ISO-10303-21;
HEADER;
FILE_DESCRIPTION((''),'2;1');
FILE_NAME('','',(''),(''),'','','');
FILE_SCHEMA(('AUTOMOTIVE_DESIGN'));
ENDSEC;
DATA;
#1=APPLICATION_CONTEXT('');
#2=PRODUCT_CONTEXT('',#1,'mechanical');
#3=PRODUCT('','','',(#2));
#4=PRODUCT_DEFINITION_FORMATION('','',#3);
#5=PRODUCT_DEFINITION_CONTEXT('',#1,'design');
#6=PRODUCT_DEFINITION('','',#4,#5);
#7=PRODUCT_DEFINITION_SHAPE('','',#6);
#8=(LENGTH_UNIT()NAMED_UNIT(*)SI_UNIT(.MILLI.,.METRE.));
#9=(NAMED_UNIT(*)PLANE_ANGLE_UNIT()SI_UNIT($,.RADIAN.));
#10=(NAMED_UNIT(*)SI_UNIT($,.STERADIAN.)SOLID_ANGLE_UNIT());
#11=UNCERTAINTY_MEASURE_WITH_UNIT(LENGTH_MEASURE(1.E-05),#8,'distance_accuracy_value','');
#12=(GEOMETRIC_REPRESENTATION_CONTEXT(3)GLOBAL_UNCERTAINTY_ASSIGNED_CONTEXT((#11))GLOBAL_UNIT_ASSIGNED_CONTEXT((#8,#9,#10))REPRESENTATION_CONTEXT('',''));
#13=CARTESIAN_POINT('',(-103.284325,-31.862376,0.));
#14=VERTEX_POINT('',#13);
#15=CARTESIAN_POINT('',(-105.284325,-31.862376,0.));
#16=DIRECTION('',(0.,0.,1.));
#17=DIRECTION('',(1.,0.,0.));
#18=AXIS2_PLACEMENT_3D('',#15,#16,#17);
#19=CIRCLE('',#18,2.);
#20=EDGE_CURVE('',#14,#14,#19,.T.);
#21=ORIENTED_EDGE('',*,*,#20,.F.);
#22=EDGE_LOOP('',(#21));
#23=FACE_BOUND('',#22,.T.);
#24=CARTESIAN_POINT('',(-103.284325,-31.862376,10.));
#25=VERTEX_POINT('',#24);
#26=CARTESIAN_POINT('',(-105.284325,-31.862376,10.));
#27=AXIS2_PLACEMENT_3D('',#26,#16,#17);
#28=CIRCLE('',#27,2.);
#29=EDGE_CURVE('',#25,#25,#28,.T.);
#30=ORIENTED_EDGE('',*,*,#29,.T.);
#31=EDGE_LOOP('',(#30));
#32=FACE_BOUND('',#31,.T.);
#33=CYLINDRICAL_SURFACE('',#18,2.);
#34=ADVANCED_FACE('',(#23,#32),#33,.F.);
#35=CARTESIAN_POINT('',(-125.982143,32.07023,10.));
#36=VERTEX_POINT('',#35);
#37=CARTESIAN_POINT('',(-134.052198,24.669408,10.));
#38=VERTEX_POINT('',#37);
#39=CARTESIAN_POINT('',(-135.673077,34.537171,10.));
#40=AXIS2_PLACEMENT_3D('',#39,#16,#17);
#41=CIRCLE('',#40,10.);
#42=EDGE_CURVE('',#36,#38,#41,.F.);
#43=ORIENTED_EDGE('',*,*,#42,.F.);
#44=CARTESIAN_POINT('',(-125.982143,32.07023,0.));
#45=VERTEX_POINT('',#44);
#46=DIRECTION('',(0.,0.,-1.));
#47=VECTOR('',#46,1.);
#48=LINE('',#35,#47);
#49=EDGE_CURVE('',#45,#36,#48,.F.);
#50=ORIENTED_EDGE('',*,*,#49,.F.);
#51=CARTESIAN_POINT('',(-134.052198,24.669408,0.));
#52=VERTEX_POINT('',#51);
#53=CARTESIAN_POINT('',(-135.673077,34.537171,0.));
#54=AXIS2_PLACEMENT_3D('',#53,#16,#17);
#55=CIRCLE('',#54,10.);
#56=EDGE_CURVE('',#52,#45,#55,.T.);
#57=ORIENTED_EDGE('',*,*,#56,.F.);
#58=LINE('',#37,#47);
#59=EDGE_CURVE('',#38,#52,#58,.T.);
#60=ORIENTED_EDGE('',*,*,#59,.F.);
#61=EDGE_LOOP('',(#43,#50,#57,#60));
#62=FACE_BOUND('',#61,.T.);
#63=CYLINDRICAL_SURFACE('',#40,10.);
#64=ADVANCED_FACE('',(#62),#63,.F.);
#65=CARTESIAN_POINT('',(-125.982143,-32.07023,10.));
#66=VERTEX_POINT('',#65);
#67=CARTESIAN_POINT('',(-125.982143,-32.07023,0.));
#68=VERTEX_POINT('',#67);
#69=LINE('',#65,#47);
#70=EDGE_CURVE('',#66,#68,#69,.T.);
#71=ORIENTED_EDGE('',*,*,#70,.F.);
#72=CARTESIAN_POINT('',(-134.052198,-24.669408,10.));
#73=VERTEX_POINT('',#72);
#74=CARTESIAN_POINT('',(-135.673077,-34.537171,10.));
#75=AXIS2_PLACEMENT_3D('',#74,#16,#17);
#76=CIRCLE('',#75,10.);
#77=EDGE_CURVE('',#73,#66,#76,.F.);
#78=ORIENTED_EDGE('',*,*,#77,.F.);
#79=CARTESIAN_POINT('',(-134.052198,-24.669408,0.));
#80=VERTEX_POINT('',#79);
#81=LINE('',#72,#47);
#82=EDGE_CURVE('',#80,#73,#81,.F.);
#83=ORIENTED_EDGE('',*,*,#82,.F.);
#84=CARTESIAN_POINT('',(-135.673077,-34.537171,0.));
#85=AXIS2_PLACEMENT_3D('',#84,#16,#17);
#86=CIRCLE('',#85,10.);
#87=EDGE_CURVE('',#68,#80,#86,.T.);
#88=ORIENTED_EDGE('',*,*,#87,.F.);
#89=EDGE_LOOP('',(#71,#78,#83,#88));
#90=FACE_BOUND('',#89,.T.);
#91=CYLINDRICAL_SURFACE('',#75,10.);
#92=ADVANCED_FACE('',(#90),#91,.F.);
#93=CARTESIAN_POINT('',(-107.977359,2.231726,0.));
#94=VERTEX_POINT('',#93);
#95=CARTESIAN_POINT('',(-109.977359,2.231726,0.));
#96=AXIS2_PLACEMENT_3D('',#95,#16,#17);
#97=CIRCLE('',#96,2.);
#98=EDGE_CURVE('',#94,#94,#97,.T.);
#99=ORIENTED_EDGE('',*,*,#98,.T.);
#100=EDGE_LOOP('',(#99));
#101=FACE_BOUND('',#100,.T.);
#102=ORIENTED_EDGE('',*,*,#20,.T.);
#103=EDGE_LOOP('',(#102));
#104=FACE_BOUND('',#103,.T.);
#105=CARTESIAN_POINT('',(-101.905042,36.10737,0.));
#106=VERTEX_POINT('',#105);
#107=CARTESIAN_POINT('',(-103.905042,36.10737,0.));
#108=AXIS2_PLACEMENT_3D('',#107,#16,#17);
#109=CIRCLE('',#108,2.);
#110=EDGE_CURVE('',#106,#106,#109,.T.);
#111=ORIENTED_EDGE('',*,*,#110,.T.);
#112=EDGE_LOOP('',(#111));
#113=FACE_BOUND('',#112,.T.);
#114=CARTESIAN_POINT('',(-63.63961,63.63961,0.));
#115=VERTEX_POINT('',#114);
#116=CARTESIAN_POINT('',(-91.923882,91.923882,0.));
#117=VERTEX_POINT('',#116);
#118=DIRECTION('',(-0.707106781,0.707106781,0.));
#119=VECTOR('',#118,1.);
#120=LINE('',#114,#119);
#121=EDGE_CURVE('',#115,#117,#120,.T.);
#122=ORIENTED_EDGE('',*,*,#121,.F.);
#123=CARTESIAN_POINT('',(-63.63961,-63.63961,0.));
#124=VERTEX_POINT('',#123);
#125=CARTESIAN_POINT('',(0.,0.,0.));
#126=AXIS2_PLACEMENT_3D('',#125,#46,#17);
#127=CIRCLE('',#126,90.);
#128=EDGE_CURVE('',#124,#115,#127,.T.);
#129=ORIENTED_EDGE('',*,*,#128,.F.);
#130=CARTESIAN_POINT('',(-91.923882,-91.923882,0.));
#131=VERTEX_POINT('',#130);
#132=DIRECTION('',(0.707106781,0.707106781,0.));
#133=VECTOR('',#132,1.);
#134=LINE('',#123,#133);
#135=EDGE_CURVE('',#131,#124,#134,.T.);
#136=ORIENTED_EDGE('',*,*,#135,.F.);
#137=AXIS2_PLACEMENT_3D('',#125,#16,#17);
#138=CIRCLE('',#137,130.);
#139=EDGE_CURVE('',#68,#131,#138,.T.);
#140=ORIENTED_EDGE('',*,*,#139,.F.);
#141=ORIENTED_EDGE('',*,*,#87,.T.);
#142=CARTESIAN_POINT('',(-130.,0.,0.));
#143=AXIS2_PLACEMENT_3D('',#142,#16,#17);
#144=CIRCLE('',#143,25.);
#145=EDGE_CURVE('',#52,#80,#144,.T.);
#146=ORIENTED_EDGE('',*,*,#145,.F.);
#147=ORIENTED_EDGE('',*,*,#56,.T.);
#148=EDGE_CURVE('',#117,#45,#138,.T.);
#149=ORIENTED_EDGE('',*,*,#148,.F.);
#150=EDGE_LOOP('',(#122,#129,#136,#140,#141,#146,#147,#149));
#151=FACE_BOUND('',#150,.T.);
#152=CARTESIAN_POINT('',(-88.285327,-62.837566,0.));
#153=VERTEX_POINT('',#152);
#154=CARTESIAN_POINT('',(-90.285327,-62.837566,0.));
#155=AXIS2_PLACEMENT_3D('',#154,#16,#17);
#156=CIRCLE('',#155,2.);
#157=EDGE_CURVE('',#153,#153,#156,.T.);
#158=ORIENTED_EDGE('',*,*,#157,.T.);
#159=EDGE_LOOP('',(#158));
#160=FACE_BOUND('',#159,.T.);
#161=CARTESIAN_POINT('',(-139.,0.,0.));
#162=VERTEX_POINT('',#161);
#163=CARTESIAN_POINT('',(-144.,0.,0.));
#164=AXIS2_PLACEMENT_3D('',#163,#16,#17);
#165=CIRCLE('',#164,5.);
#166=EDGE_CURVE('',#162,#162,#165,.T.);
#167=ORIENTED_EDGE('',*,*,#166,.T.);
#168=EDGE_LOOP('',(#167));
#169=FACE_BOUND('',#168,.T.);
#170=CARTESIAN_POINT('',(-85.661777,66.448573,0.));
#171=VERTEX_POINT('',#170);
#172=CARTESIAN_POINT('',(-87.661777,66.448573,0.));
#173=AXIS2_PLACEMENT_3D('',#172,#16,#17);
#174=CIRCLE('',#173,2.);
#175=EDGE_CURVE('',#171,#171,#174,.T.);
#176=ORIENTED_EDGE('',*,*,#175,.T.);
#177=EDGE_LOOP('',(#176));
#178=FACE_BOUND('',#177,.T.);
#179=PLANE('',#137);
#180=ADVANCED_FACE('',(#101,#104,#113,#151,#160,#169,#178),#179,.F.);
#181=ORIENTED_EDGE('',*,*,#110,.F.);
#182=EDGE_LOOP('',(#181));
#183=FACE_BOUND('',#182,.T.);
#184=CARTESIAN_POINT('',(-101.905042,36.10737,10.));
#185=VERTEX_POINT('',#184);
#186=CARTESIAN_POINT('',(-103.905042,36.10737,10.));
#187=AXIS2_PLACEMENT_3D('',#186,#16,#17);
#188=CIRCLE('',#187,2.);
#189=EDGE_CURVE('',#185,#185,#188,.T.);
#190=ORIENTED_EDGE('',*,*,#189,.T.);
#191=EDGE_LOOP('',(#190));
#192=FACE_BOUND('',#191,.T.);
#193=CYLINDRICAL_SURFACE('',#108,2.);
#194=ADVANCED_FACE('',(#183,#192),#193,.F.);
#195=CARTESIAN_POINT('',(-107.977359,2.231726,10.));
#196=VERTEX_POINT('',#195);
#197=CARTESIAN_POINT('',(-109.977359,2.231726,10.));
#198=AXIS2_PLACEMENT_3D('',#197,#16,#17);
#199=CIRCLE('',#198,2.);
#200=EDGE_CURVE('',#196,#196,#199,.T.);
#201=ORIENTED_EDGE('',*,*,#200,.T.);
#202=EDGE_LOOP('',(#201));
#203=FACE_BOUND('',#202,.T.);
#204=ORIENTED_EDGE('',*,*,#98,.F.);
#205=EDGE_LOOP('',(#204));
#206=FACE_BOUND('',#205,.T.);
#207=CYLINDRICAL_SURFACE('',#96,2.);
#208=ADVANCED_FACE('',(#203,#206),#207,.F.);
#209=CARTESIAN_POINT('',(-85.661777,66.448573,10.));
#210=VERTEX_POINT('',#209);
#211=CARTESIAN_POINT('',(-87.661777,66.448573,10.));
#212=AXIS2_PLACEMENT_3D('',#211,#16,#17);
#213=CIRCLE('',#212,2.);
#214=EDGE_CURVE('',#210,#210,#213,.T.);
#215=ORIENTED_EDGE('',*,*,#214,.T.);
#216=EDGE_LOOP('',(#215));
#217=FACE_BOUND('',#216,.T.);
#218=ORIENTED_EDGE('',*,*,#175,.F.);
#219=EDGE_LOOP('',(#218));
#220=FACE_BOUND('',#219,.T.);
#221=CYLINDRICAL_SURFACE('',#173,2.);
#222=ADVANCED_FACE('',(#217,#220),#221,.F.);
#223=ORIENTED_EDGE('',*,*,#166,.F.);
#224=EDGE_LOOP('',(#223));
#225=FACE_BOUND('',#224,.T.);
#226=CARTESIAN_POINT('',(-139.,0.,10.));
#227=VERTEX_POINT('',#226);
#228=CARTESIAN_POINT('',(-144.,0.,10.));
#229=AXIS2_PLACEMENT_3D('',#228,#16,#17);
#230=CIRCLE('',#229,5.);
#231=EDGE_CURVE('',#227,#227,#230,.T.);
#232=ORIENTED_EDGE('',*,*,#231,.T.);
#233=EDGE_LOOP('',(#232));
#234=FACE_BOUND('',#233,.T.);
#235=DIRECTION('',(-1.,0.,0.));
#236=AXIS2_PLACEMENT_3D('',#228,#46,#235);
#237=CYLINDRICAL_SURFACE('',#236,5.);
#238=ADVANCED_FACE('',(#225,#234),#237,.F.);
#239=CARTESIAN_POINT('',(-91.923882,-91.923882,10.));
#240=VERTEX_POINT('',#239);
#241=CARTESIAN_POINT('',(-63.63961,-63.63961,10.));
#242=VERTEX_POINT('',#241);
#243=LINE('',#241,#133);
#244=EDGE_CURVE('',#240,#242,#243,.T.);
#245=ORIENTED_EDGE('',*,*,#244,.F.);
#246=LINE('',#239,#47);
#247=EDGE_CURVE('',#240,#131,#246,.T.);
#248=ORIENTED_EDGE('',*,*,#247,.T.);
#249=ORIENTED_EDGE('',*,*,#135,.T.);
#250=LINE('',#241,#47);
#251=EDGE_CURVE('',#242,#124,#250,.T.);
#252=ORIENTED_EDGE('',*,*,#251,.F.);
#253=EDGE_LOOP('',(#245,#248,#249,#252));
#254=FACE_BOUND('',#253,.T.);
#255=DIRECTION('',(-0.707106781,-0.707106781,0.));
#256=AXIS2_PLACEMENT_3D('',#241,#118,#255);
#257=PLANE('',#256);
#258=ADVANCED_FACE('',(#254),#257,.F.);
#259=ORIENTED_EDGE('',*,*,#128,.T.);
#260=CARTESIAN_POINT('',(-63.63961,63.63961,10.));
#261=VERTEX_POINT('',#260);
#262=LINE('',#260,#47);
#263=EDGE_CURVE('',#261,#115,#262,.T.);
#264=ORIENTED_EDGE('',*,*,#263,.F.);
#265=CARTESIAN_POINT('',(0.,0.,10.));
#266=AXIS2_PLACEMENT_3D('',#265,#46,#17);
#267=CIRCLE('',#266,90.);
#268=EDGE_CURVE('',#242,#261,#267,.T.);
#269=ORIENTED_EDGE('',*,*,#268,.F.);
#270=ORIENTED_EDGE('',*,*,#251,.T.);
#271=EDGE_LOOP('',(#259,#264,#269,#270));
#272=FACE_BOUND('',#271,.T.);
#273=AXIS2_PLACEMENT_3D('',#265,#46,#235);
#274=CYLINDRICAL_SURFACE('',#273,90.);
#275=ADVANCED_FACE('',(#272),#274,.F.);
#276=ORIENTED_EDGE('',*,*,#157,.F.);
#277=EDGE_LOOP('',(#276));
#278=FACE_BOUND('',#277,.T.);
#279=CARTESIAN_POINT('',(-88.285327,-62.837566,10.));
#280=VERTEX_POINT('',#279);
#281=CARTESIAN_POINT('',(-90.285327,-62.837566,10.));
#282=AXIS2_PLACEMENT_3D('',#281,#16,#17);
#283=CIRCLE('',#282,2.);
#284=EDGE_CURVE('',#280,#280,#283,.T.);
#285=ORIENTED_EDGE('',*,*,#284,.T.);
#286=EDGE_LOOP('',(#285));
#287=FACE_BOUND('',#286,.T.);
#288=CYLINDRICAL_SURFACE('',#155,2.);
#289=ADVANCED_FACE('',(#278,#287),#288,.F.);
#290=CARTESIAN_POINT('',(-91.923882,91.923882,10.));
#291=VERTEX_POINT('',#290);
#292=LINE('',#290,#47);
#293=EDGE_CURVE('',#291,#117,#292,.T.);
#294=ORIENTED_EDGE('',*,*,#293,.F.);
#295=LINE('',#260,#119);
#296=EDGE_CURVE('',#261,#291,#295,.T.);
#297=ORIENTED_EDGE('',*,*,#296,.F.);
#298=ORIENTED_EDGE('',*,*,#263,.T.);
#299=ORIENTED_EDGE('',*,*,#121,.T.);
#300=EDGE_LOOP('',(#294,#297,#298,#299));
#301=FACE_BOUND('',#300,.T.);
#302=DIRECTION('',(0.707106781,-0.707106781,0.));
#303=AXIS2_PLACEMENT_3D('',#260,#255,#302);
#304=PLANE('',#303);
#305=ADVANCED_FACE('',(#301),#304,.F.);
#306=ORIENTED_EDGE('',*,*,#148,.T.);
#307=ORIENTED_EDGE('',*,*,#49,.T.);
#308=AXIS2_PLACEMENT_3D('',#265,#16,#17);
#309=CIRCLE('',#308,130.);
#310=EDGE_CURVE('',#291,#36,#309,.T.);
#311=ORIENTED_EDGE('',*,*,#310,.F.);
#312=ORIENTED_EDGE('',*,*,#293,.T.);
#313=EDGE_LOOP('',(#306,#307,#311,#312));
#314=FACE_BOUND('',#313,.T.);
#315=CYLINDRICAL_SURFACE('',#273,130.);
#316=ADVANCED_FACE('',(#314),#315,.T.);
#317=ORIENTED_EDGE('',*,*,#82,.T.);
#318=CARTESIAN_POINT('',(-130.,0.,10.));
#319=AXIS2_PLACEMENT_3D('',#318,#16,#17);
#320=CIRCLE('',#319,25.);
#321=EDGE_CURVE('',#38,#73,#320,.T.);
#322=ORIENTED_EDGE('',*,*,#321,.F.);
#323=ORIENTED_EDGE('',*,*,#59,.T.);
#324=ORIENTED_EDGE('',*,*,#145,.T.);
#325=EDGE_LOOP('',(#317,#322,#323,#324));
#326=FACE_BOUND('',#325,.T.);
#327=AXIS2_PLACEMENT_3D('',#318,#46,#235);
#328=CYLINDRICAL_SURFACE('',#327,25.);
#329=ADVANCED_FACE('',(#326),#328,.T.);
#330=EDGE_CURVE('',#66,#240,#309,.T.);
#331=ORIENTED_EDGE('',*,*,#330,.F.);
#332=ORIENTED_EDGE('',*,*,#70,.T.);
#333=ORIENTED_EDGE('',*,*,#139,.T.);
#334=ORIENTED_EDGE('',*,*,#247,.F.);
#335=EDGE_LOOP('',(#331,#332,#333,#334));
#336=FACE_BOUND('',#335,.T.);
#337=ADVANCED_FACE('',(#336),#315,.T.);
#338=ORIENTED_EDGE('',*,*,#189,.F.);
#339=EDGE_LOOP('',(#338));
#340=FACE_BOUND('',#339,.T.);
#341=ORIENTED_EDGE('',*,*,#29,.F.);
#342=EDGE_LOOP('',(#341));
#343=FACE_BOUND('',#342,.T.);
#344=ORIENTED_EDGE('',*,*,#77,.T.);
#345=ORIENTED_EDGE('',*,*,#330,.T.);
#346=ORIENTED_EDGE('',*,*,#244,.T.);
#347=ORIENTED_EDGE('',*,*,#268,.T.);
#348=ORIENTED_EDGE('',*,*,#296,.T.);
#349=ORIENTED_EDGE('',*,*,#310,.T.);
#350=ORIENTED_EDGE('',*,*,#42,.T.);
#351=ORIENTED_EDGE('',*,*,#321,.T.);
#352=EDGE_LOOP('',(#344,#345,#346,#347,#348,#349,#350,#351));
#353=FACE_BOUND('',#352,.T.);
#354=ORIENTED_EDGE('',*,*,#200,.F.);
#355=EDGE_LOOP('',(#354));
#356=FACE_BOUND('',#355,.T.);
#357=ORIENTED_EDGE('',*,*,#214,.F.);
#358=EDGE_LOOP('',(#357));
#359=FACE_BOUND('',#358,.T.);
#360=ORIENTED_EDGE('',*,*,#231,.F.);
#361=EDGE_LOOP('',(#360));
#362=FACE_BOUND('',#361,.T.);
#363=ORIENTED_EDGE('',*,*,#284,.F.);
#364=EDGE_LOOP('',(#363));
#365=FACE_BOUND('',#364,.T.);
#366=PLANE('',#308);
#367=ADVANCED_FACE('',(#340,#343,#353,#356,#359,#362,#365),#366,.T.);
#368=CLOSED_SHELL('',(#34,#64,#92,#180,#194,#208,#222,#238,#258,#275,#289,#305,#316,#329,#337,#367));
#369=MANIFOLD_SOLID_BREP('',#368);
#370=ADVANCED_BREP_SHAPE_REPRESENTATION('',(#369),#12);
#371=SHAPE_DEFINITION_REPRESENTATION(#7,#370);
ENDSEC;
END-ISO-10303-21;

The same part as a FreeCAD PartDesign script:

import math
import FreeCAD as App
import Part
import Sketcher


def edges_at(feature, points):
    """Names of the edges that pass closest to the given points."""
    edges = feature.Shape.Edges
    near = lambda p: min(range(len(edges)), key=lambda i: edges[i].distToShape(Part.Vertex(*p))[0])
    return sorted({f"Edge{near(p) + 1}" for p in points})

doc = App.newDocument("Part")
body = doc.addObject("PartDesign::Body", "Body")

# Sketch on XY plane
sketch1 = body.newObject("Sketcher::SketchObject", "Sketch")
sketch1.AttachmentSupport = (doc.getObject("XY_Plane"), [""])
sketch1.MapMode = "FlatFace"
sketch1.addGeometry([
    Part.LineSegment(App.Vector(-63.63961, 63.63961, 0), App.Vector(-91.923882, 91.923882, 0)),  # 0
    Part.ArcOfCircle(Part.Circle(App.Vector(0, 0, 0), App.Vector(0, 0, 1), 130), math.radians(135), math.radians(168.964531)),  # 1
    Part.ArcOfCircle(Part.Circle(App.Vector(-130, 0, 0), App.Vector(0, 0, 1), 25), math.radians(84.482266), math.radians(275.517734)),  # 2
    Part.ArcOfCircle(Part.Circle(App.Vector(0, 0, 0), App.Vector(0, 0, 1), 130), math.radians(-168.964531), math.radians(-135)),  # 3
    Part.LineSegment(App.Vector(-91.923882, -91.923882, 0), App.Vector(-63.63961, -63.63961, 0)),  # 4
    Part.ArcOfCircle(Part.Circle(App.Vector(0, 0, 0), App.Vector(0, 0, 1), 90), math.radians(135), math.radians(225)),  # 5
    Part.Circle(App.Vector(-144, 0, 0), App.Vector(0, 0, 1), 5),  # 6
], False)
sketch1.addConstraint([
    Sketcher.Constraint("Coincident", 0, 2, 1, 1),
    Sketcher.Constraint("Coincident", 1, 2, 2, 1),
    Sketcher.Constraint("Coincident", 2, 2, 3, 1),
    Sketcher.Constraint("Coincident", 3, 2, 4, 1),
    Sketcher.Constraint("Coincident", 4, 2, 5, 2),
    Sketcher.Constraint("Coincident", 5, 1, 0, 1),
    Sketcher.Constraint("Coincident", 1, 3, -1, 1),
    Sketcher.Constraint("Coincident", 3, 3, -1, 1),
    Sketcher.Constraint("Coincident", 5, 3, -1, 1),
    Sketcher.Constraint("Equal", 1, 3),
    Sketcher.Constraint("PointOnObject", 2, 3, -1),
    Sketcher.Constraint("PointOnObject", 6, 3, -1),
    Sketcher.Constraint("Perpendicular", 0, 4),
    Sketcher.Constraint("Vertical", 0, 2, 3, 2),
    Sketcher.Constraint("Vertical", 4, 2, 5, 1),
    Sketcher.Constraint("Diameter", 6, 10.0),
    Sketcher.Constraint("Radius", 1, 130.0),
    Sketcher.Constraint("Radius", 2, 25.0),
    Sketcher.Constraint("Radius", 5, 90.0),
    Sketcher.Constraint("DistanceX", 2, 3, -1, 1, 130.0),
    Sketcher.Constraint("DistanceX", 6, 3, -1, 1, 144.0),
    Sketcher.Constraint("DistanceX", 0, 2, -1, 1, 91.923882),
])
pad1 = body.newObject("PartDesign::Pad", "Pad")
pad1.Profile = sketch1
pad1.Length = 10
doc.recompute()

fillet = body.newObject("PartDesign::Fillet", "Fillet")
fillet.Base = (pad1, edges_at(pad1, [(-127.596, -24.884, 5), (-127.596, 24.884, 5)]))
fillet.Radius = 10

# Sketch on XY plane
sketch2 = body.newObject("Sketcher::SketchObject", "Sketch001")
sketch2.AttachmentSupport = (doc.getObject("XY_Plane"), [""])
sketch2.MapMode = "FlatFace"
sketch2.AttachmentOffset = App.Placement(App.Vector(0, 0, 10), App.Rotation())
sketch2.addGeometry([
    Part.Circle(App.Vector(-87.661777, 66.448573, 0), App.Vector(0, 0, 1), 2),  # 0
    Part.Circle(App.Vector(-103.905042, 36.10737, 0), App.Vector(0, 0, 1), 2),  # 1
    Part.Circle(App.Vector(-109.977359, 2.231726, 0), App.Vector(0, 0, 1), 2),  # 2
    Part.Circle(App.Vector(-105.284325, -31.862376, 0), App.Vector(0, 0, 1), 2),  # 3
    Part.Circle(App.Vector(-90.285327, -62.837566, 0), App.Vector(0, 0, 1), 2),  # 4
], False)
sketch2.addConstraint([
    Sketcher.Constraint("Equal", 0, 1),
    Sketcher.Constraint("Equal", 1, 2),
    Sketcher.Constraint("Equal", 2, 3),
    Sketcher.Constraint("Equal", 3, 4),
    Sketcher.Constraint("Diameter", 0, 4.0),
    Sketcher.Constraint("DistanceY", 3, 3, 2, 3, 34.094101),
    Sketcher.Constraint("DistanceY", -1, 1, 1, 3, 36.10737),
    Sketcher.Constraint("DistanceX", 2, 3, -1, 1, 109.977359),
    Sketcher.Constraint("DistanceX", 2, 3, 0, 3, 22.315582),
    Sketcher.Constraint("DistanceY", 3, 3, 0, 3, 98.310949),
    Sketcher.Constraint("DistanceY", 4, 3, 3, 3, 30.97519),
    Sketcher.Constraint("DistanceX", 2, 3, 4, 3, 19.692031),
    Sketcher.Constraint("DistanceY", -1, 1, 0, 3, 66.448573),
    Sketcher.Constraint("DistanceX", 1, 3, -1, 1, 103.905042),
    Sketcher.Constraint("DistanceX", 3, 3, -1, 1, 105.284325),
])
pocket1 = body.newObject("PartDesign::Pocket", "Pocket")
pocket1.Profile = sketch2
pocket1.Type = "ThroughAll"

doc.recompute()
